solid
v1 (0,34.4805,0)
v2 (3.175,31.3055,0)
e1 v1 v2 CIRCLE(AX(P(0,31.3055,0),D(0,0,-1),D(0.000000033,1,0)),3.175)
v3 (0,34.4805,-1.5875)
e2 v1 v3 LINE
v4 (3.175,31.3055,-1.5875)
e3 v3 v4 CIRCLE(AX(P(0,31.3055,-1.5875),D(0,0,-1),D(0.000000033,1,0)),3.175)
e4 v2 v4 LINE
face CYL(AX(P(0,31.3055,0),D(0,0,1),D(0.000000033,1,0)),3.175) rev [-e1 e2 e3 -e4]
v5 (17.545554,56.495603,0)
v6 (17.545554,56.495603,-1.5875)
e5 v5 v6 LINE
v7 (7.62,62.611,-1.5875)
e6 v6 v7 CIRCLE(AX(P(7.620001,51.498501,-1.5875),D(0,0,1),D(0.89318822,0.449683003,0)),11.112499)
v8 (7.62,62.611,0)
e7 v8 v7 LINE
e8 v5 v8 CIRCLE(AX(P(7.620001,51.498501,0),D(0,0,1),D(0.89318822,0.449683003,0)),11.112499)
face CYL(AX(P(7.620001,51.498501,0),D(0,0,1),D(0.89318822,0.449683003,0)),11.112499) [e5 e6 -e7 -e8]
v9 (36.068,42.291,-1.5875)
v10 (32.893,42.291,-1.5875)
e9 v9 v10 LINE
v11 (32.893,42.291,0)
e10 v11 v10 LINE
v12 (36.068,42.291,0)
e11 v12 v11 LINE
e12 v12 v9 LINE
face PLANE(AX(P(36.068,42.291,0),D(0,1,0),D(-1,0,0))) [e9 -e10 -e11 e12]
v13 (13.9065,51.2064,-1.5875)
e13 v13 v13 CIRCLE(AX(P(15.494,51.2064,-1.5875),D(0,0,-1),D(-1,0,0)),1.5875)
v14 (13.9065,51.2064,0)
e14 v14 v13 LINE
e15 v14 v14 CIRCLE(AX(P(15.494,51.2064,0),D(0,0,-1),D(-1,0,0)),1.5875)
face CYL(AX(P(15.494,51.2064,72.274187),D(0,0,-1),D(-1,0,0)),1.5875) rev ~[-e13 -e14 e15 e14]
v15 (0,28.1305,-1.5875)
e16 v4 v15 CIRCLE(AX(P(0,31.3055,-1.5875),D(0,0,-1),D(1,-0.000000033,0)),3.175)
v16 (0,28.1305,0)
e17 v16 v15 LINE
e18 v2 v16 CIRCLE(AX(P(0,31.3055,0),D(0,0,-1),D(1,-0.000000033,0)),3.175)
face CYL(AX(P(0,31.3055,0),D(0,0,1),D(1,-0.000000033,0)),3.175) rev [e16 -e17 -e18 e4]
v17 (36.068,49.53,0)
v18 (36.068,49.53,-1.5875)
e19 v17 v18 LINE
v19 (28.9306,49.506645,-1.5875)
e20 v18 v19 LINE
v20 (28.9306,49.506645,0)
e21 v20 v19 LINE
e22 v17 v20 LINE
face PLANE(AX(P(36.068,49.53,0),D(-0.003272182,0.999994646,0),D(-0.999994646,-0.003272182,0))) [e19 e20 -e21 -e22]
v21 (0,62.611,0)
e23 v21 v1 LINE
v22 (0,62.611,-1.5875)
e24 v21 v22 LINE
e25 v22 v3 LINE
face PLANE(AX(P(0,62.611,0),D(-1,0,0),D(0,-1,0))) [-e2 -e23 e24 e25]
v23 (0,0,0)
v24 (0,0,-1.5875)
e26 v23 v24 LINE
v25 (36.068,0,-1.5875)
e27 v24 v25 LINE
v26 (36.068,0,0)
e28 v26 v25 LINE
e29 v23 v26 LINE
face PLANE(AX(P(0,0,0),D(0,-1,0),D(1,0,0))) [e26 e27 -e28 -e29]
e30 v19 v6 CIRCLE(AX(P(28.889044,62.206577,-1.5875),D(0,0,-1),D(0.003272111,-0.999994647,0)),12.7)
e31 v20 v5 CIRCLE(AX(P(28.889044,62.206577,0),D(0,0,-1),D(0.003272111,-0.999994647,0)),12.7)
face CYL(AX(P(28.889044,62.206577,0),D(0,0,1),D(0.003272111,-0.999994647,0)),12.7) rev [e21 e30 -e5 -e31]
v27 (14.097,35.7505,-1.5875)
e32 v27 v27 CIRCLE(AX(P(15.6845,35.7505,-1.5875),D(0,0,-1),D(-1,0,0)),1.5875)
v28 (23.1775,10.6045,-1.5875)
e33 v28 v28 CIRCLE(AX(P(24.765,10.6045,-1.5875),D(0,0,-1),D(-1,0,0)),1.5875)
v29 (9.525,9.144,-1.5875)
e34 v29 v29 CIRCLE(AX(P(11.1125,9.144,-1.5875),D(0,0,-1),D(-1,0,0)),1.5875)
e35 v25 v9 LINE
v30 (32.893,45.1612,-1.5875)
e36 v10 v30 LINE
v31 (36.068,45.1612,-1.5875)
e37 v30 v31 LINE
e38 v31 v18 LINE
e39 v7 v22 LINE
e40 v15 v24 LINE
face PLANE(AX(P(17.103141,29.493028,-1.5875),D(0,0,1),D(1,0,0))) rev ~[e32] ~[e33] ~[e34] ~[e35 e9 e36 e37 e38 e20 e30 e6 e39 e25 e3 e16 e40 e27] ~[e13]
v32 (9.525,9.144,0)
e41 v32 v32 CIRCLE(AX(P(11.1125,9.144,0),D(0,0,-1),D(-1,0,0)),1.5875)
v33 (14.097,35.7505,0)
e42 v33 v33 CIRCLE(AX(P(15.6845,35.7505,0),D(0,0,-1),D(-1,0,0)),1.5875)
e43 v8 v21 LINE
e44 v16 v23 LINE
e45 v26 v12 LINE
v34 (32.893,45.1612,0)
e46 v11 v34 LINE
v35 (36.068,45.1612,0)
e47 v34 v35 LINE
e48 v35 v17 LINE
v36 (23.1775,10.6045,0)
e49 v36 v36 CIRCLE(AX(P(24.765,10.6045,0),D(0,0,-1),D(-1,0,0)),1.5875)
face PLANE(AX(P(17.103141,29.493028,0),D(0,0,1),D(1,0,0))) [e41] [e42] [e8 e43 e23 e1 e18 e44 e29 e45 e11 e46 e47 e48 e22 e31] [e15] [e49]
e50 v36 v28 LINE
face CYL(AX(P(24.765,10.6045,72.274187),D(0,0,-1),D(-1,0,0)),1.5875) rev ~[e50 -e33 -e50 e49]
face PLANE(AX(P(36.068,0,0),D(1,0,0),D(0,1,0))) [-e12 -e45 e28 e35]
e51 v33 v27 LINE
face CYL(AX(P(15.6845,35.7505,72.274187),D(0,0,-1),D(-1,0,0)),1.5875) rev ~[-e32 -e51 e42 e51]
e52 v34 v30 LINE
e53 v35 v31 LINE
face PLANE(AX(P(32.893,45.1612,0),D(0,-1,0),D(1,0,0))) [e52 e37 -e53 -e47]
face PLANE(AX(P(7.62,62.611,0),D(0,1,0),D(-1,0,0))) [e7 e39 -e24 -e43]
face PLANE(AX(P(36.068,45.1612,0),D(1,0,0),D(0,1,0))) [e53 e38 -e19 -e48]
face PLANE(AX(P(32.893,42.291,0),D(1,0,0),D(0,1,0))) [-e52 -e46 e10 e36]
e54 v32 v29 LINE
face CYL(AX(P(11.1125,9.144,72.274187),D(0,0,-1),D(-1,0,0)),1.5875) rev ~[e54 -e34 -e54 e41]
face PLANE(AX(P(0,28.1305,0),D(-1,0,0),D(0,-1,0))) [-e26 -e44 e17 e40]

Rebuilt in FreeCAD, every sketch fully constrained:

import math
import FreeCAD as App
import Part
import Sketcher

V = App.Vector
Q = App.Units.Quantity

doc = App.newDocument("Part")
body = doc.addObject("PartDesign::Body", "Body")

# Sketch on XY plane
sketch1 = body.newObject("Sketcher::SketchObject", "Sketch")
sketch1.AttachmentSupport = (doc.getObject("XY_Plane"), [""])
sketch1.MapMode = "FlatFace"
sketch1.addGeometry(Part.LineSegment(V(0, 28.1, 0), V(0, 0, 0)), False)
sketch1.addGeometry(Part.LineSegment(V(0, 0, 0), V(36.1, 0, 0)), False)
sketch1.addGeometry(Part.LineSegment(V(36.1, 0, 0), V(36.1, 42.3, 0)), False)
sketch1.addGeometry(Part.LineSegment(V(36.1, 42.3, 0), V(32.9, 42.3, 0)), False)
sketch1.addGeometry(Part.LineSegment(V(32.9, 42.3, 0), V(32.9, 45.2, 0)), False)
sketch1.addGeometry(Part.LineSegment(V(32.9, 45.2, 0), V(36.1, 45.2, 0)), False)
sketch1.addGeometry(Part.LineSegment(V(36.1, 45.2, 0), V(36.1, 49.5, 0)), False)
sketch1.addGeometry(Part.LineSegment(V(36.1, 49.5, 0), V(28.9, 49.5, 0)), False)
sketch1.addGeometry(Part.ArcOfCircle(Part.Circle(V(28.9, 62.2, 0), V(0, 0, 1), 12.7), math.radians(-153), math.radians(-90)), False)
sketch1.addGeometry(Part.ArcOfCircle(Part.Circle(V(7.6, 51.5, 0), V(0, 0, 1), 11.1), math.radians(27), math.radians(90)), False)
sketch1.addGeometry(Part.LineSegment(V(7.6, 62.6, 0), V(0, 62.6, 0)), False)
sketch1.addGeometry(Part.LineSegment(V(0, 62.6, 0), V(0, 34.5, 0)), False)
sketch1.addGeometry(Part.ArcOfCircle(Part.Circle(V(0, 31.3, 0), V(0, 0, 1), 3.2), math.radians(0), math.radians(90)), False)
sketch1.addGeometry(Part.ArcOfCircle(Part.Circle(V(0, 31.3, 0), V(0, 0, 1), 3.2), math.radians(-90), math.radians(0)), False)
sketch1.addConstraint(Sketcher.Constraint("Coincident", 0, 2, 1, 1))
sketch1.addConstraint(Sketcher.Constraint("Coincident", 1, 2, 2, 1))
sketch1.addConstraint(Sketcher.Constraint("Coincident", 2, 2, 3, 1))
sketch1.addConstraint(Sketcher.Constraint("Coincident", 3, 2, 4, 1))
sketch1.addConstraint(Sketcher.Constraint("Coincident", 4, 2, 5, 1))
sketch1.addConstraint(Sketcher.Constraint("Coincident", 5, 2, 6, 1))
sketch1.addConstraint(Sketcher.Constraint("Coincident", 6, 2, 7, 1))
sketch1.addConstraint(Sketcher.Constraint("Tangent", 7, 2, 8, 2))
sketch1.addConstraint(Sketcher.Constraint("Tangent", 8, 1, 9, 1))
sketch1.addConstraint(Sketcher.Constraint("Tangent", 9, 2, 10, 1))
sketch1.addConstraint(Sketcher.Constraint("Coincident", 10, 2, 11, 1))
sketch1.addConstraint(Sketcher.Constraint("Coincident", 11, 2, 12, 2))
sketch1.addConstraint(Sketcher.Constraint("Tangent", 12, 1, 13, 2))
sketch1.addConstraint(Sketcher.Constraint("Coincident", 13, 1, 0, 1))
sketch1.addConstraint(Sketcher.Constraint("Vertical", 0))
sketch1.addConstraint(Sketcher.Constraint("Horizontal", 1))
sketch1.addConstraint(Sketcher.Constraint("Vertical", 2))
sketch1.addConstraint(Sketcher.Constraint("Horizontal", 3))
sketch1.addConstraint(Sketcher.Constraint("Vertical", 4))
sketch1.addConstraint(Sketcher.Constraint("Horizontal", 5))
sketch1.addConstraint(Sketcher.Constraint("Vertical", 6))
sketch1.addConstraint(Sketcher.Constraint("Horizontal", 10))
sketch1.addConstraint(Sketcher.Constraint("Vertical", 11))
sketch1.addConstraint(Sketcher.Constraint("Coincident", 0, 2, -1, 1))
sketch1.addConstraint(Sketcher.Constraint("Equal", 12, 13))
sketch1.addConstraint(Sketcher.Constraint("PointOnObject", 12, 3, -2))
sketch1.addConstraint(Sketcher.Constraint("PointOnObject", 10, 2, -2))
sketch1.addConstraint(Sketcher.Constraint("Horizontal", 13, 3, 12, 1))
sketch1.addConstraint(Sketcher.Constraint("Vertical", 2, 2, 5, 2))
sketch1.addConstraint(Sketcher.Constraint("Equal", 0, 11))
sketch1.addConstraint(Sketcher.Constraint("Radius", 8, Q("0.5 in")))
sketch1.addConstraint(Sketcher.Constraint("DistanceX", 10, 2, 10, 1, Q("0.3 in")))
sketch1.addConstraint(Sketcher.Constraint("Radius", 9, Q("0.4375 in")))
sketch1.addConstraint(Sketcher.Constraint("Radius", 12, Q("0.125 in")))
sketch1.addConstraint(Sketcher.Constraint("DistanceX", 1, 1, 1, 2, Q("1.42 in")))
sketch1.addConstraint(Sketcher.Constraint("DistanceX", 3, 2, 3, 1, Q("0.125 in")))
sketch1.addConstraint(Sketcher.Constraint("DistanceY", 2, 1, 2, 2, Q("1.665 in")))
sketch1.addConstraint(Sketcher.Constraint("DistanceY", 4, 1, 4, 2, Q("0.113 in")))
sketch1.addConstraint(Sketcher.Constraint("DistanceY", 6, 1, 6, 2, Q("0.172 in")))
sketch1.addConstraint(Sketcher.Constraint("DistanceY", 11, 2, 9, 3, Q("0.67 in")))
sketch1.addConstraint(Sketcher.Constraint("DistanceX", -1, 1, 7, 2, Q("1.139 in")))
pad1 = body.newObject("PartDesign::Pad", "Pad")
pad1.Profile = sketch1
pad1.Length = Q("0.0625 in")
pad1.Reversed = True

# Sketch on XY plane
sketch2 = body.newObject("Sketcher::SketchObject", "Sketch001")
sketch2.AttachmentSupport = (doc.getObject("XY_Plane"), [""])
sketch2.MapMode = "FlatFace"
sketch2.addGeometry(Part.Circle(V(15.5, 51.2, 0), V(0, 0, 1), 1.6), False)
sketch2.addGeometry(Part.Circle(V(15.7, 35.8, 0), V(0, 0, 1), 1.6), False)
sketch2.addGeometry(Part.Circle(V(11.1, 9.1, 0), V(0, 0, 1), 1.6), False)
sketch2.addGeometry(Part.Circle(V(24.8, 10.6, 0), V(0, 0, 1), 1.6), False)
sketch2.addConstraint(Sketcher.Constraint("Equal", 0, 1))
sketch2.addConstraint(Sketcher.Constraint("Equal", 1, 2))
sketch2.addConstraint(Sketcher.Constraint("Equal", 2, 3))
sketch2.addConstraint(Sketcher.Constraint("Diameter", 0, Q("0.125 in")))
sketch2.addConstraint(Sketcher.Constraint("DistanceX", -1, 1, 0, 3, Q("0.61 in")))
sketch2.addConstraint(Sketcher.Constraint("DistanceY", -1, 1, 2, 3, Q("0.36 in")))
sketch2.addConstraint(Sketcher.Constraint("DistanceX", 2, 3, 1, 3, Q("0.18 in")))
sketch2.addConstraint(Sketcher.Constraint("DistanceY", 3, 3, 1, 3, Q("0.99 in")))
sketch2.addConstraint(Sketcher.Constraint("DistanceY", -1, 1, 0, 3, Q("2.016 in")))
sketch2.addConstraint(Sketcher.Constraint("DistanceX", -1, 1, 2, 3, Q("0.4375 in")))
sketch2.addConstraint(Sketcher.Constraint("DistanceX", -1, 1, 3, 3, Q("0.975 in")))
sketch2.addConstraint(Sketcher.Constraint("DistanceY", -1, 1, 1, 3, Q("1.4075 in")))
doc.recompute()
hole = body.newObject("PartDesign::Hole", "Hole")
hole.Profile = sketch2
hole.ThreadType = "None"
hole.Diameter = Q("0.125 in")
hole.DepthType = "ThroughAll"

doc.recompute()
